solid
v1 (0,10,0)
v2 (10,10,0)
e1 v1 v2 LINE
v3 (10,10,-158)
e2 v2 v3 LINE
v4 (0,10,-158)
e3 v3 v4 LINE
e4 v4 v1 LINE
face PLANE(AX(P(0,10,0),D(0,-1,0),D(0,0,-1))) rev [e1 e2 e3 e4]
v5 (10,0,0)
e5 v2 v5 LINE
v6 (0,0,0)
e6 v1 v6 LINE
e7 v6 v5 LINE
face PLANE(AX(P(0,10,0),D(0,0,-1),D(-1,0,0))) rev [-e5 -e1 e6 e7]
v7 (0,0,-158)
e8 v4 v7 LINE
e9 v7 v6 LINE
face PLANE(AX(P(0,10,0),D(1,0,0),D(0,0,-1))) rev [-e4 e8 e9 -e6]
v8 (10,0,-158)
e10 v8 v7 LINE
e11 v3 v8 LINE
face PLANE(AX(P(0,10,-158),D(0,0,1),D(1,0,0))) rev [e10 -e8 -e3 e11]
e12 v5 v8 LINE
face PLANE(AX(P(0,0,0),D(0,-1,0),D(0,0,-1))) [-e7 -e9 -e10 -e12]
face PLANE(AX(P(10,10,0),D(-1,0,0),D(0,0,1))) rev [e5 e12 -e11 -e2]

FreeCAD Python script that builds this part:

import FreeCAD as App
import Part
import Sketcher

V = App.Vector
Q = App.Units.Quantity

doc = App.newDocument("Part")
body = doc.addObject("PartDesign::Body", "Body")

sketch1 = doc.addObject("Sketcher::SketchObject", "Sketch")
body.addObject(sketch1)
sketch1.AttachmentSupport = (doc.XZ_Plane, [""])
sketch1.MapMode = "FlatFace"
sketch1.addGeometry([
    Part.LineSegment(V(0, -158, 0), V(0, 0, 0)),
    Part.LineSegment(V(0, 0, 0), V(10, 0, 0)),
    Part.LineSegment(V(10, 0, 0), V(10, -158, 0)),
    Part.LineSegment(V(10, -158, 0), V(0, -158, 0)),
], False)
sketch1.addConstraint([
    Sketcher.Constraint("Coincident", 0, 2, 1, 1),
    Sketcher.Constraint("Coincident", 1, 2, 2, 1),
    Sketcher.Constraint("Coincident", 2, 2, 3, 1),
    Sketcher.Constraint("Coincident", 3, 2, 0, 1),
    Sketcher.Constraint("Vertical", 0),
    Sketcher.Constraint("Horizontal", 1),
    Sketcher.Constraint("Vertical", 2),
    Sketcher.Constraint("Horizontal", 3),
    Sketcher.Constraint("Coincident", 0, 2, -1, 1),
    Sketcher.Constraint("DistanceX", 1, 1, 1, 2, Q("10 mm")),
    Sketcher.Constraint("DistanceY", 0, 1, 0, 2, Q("158 mm")),
])
pad1 = doc.addObject("PartDesign::Pad", "Pad")
body.addObject(pad1)
pad1.Profile = sketch1
pad1.Length = 10
pad1.Reversed = True

doc.recompute()
